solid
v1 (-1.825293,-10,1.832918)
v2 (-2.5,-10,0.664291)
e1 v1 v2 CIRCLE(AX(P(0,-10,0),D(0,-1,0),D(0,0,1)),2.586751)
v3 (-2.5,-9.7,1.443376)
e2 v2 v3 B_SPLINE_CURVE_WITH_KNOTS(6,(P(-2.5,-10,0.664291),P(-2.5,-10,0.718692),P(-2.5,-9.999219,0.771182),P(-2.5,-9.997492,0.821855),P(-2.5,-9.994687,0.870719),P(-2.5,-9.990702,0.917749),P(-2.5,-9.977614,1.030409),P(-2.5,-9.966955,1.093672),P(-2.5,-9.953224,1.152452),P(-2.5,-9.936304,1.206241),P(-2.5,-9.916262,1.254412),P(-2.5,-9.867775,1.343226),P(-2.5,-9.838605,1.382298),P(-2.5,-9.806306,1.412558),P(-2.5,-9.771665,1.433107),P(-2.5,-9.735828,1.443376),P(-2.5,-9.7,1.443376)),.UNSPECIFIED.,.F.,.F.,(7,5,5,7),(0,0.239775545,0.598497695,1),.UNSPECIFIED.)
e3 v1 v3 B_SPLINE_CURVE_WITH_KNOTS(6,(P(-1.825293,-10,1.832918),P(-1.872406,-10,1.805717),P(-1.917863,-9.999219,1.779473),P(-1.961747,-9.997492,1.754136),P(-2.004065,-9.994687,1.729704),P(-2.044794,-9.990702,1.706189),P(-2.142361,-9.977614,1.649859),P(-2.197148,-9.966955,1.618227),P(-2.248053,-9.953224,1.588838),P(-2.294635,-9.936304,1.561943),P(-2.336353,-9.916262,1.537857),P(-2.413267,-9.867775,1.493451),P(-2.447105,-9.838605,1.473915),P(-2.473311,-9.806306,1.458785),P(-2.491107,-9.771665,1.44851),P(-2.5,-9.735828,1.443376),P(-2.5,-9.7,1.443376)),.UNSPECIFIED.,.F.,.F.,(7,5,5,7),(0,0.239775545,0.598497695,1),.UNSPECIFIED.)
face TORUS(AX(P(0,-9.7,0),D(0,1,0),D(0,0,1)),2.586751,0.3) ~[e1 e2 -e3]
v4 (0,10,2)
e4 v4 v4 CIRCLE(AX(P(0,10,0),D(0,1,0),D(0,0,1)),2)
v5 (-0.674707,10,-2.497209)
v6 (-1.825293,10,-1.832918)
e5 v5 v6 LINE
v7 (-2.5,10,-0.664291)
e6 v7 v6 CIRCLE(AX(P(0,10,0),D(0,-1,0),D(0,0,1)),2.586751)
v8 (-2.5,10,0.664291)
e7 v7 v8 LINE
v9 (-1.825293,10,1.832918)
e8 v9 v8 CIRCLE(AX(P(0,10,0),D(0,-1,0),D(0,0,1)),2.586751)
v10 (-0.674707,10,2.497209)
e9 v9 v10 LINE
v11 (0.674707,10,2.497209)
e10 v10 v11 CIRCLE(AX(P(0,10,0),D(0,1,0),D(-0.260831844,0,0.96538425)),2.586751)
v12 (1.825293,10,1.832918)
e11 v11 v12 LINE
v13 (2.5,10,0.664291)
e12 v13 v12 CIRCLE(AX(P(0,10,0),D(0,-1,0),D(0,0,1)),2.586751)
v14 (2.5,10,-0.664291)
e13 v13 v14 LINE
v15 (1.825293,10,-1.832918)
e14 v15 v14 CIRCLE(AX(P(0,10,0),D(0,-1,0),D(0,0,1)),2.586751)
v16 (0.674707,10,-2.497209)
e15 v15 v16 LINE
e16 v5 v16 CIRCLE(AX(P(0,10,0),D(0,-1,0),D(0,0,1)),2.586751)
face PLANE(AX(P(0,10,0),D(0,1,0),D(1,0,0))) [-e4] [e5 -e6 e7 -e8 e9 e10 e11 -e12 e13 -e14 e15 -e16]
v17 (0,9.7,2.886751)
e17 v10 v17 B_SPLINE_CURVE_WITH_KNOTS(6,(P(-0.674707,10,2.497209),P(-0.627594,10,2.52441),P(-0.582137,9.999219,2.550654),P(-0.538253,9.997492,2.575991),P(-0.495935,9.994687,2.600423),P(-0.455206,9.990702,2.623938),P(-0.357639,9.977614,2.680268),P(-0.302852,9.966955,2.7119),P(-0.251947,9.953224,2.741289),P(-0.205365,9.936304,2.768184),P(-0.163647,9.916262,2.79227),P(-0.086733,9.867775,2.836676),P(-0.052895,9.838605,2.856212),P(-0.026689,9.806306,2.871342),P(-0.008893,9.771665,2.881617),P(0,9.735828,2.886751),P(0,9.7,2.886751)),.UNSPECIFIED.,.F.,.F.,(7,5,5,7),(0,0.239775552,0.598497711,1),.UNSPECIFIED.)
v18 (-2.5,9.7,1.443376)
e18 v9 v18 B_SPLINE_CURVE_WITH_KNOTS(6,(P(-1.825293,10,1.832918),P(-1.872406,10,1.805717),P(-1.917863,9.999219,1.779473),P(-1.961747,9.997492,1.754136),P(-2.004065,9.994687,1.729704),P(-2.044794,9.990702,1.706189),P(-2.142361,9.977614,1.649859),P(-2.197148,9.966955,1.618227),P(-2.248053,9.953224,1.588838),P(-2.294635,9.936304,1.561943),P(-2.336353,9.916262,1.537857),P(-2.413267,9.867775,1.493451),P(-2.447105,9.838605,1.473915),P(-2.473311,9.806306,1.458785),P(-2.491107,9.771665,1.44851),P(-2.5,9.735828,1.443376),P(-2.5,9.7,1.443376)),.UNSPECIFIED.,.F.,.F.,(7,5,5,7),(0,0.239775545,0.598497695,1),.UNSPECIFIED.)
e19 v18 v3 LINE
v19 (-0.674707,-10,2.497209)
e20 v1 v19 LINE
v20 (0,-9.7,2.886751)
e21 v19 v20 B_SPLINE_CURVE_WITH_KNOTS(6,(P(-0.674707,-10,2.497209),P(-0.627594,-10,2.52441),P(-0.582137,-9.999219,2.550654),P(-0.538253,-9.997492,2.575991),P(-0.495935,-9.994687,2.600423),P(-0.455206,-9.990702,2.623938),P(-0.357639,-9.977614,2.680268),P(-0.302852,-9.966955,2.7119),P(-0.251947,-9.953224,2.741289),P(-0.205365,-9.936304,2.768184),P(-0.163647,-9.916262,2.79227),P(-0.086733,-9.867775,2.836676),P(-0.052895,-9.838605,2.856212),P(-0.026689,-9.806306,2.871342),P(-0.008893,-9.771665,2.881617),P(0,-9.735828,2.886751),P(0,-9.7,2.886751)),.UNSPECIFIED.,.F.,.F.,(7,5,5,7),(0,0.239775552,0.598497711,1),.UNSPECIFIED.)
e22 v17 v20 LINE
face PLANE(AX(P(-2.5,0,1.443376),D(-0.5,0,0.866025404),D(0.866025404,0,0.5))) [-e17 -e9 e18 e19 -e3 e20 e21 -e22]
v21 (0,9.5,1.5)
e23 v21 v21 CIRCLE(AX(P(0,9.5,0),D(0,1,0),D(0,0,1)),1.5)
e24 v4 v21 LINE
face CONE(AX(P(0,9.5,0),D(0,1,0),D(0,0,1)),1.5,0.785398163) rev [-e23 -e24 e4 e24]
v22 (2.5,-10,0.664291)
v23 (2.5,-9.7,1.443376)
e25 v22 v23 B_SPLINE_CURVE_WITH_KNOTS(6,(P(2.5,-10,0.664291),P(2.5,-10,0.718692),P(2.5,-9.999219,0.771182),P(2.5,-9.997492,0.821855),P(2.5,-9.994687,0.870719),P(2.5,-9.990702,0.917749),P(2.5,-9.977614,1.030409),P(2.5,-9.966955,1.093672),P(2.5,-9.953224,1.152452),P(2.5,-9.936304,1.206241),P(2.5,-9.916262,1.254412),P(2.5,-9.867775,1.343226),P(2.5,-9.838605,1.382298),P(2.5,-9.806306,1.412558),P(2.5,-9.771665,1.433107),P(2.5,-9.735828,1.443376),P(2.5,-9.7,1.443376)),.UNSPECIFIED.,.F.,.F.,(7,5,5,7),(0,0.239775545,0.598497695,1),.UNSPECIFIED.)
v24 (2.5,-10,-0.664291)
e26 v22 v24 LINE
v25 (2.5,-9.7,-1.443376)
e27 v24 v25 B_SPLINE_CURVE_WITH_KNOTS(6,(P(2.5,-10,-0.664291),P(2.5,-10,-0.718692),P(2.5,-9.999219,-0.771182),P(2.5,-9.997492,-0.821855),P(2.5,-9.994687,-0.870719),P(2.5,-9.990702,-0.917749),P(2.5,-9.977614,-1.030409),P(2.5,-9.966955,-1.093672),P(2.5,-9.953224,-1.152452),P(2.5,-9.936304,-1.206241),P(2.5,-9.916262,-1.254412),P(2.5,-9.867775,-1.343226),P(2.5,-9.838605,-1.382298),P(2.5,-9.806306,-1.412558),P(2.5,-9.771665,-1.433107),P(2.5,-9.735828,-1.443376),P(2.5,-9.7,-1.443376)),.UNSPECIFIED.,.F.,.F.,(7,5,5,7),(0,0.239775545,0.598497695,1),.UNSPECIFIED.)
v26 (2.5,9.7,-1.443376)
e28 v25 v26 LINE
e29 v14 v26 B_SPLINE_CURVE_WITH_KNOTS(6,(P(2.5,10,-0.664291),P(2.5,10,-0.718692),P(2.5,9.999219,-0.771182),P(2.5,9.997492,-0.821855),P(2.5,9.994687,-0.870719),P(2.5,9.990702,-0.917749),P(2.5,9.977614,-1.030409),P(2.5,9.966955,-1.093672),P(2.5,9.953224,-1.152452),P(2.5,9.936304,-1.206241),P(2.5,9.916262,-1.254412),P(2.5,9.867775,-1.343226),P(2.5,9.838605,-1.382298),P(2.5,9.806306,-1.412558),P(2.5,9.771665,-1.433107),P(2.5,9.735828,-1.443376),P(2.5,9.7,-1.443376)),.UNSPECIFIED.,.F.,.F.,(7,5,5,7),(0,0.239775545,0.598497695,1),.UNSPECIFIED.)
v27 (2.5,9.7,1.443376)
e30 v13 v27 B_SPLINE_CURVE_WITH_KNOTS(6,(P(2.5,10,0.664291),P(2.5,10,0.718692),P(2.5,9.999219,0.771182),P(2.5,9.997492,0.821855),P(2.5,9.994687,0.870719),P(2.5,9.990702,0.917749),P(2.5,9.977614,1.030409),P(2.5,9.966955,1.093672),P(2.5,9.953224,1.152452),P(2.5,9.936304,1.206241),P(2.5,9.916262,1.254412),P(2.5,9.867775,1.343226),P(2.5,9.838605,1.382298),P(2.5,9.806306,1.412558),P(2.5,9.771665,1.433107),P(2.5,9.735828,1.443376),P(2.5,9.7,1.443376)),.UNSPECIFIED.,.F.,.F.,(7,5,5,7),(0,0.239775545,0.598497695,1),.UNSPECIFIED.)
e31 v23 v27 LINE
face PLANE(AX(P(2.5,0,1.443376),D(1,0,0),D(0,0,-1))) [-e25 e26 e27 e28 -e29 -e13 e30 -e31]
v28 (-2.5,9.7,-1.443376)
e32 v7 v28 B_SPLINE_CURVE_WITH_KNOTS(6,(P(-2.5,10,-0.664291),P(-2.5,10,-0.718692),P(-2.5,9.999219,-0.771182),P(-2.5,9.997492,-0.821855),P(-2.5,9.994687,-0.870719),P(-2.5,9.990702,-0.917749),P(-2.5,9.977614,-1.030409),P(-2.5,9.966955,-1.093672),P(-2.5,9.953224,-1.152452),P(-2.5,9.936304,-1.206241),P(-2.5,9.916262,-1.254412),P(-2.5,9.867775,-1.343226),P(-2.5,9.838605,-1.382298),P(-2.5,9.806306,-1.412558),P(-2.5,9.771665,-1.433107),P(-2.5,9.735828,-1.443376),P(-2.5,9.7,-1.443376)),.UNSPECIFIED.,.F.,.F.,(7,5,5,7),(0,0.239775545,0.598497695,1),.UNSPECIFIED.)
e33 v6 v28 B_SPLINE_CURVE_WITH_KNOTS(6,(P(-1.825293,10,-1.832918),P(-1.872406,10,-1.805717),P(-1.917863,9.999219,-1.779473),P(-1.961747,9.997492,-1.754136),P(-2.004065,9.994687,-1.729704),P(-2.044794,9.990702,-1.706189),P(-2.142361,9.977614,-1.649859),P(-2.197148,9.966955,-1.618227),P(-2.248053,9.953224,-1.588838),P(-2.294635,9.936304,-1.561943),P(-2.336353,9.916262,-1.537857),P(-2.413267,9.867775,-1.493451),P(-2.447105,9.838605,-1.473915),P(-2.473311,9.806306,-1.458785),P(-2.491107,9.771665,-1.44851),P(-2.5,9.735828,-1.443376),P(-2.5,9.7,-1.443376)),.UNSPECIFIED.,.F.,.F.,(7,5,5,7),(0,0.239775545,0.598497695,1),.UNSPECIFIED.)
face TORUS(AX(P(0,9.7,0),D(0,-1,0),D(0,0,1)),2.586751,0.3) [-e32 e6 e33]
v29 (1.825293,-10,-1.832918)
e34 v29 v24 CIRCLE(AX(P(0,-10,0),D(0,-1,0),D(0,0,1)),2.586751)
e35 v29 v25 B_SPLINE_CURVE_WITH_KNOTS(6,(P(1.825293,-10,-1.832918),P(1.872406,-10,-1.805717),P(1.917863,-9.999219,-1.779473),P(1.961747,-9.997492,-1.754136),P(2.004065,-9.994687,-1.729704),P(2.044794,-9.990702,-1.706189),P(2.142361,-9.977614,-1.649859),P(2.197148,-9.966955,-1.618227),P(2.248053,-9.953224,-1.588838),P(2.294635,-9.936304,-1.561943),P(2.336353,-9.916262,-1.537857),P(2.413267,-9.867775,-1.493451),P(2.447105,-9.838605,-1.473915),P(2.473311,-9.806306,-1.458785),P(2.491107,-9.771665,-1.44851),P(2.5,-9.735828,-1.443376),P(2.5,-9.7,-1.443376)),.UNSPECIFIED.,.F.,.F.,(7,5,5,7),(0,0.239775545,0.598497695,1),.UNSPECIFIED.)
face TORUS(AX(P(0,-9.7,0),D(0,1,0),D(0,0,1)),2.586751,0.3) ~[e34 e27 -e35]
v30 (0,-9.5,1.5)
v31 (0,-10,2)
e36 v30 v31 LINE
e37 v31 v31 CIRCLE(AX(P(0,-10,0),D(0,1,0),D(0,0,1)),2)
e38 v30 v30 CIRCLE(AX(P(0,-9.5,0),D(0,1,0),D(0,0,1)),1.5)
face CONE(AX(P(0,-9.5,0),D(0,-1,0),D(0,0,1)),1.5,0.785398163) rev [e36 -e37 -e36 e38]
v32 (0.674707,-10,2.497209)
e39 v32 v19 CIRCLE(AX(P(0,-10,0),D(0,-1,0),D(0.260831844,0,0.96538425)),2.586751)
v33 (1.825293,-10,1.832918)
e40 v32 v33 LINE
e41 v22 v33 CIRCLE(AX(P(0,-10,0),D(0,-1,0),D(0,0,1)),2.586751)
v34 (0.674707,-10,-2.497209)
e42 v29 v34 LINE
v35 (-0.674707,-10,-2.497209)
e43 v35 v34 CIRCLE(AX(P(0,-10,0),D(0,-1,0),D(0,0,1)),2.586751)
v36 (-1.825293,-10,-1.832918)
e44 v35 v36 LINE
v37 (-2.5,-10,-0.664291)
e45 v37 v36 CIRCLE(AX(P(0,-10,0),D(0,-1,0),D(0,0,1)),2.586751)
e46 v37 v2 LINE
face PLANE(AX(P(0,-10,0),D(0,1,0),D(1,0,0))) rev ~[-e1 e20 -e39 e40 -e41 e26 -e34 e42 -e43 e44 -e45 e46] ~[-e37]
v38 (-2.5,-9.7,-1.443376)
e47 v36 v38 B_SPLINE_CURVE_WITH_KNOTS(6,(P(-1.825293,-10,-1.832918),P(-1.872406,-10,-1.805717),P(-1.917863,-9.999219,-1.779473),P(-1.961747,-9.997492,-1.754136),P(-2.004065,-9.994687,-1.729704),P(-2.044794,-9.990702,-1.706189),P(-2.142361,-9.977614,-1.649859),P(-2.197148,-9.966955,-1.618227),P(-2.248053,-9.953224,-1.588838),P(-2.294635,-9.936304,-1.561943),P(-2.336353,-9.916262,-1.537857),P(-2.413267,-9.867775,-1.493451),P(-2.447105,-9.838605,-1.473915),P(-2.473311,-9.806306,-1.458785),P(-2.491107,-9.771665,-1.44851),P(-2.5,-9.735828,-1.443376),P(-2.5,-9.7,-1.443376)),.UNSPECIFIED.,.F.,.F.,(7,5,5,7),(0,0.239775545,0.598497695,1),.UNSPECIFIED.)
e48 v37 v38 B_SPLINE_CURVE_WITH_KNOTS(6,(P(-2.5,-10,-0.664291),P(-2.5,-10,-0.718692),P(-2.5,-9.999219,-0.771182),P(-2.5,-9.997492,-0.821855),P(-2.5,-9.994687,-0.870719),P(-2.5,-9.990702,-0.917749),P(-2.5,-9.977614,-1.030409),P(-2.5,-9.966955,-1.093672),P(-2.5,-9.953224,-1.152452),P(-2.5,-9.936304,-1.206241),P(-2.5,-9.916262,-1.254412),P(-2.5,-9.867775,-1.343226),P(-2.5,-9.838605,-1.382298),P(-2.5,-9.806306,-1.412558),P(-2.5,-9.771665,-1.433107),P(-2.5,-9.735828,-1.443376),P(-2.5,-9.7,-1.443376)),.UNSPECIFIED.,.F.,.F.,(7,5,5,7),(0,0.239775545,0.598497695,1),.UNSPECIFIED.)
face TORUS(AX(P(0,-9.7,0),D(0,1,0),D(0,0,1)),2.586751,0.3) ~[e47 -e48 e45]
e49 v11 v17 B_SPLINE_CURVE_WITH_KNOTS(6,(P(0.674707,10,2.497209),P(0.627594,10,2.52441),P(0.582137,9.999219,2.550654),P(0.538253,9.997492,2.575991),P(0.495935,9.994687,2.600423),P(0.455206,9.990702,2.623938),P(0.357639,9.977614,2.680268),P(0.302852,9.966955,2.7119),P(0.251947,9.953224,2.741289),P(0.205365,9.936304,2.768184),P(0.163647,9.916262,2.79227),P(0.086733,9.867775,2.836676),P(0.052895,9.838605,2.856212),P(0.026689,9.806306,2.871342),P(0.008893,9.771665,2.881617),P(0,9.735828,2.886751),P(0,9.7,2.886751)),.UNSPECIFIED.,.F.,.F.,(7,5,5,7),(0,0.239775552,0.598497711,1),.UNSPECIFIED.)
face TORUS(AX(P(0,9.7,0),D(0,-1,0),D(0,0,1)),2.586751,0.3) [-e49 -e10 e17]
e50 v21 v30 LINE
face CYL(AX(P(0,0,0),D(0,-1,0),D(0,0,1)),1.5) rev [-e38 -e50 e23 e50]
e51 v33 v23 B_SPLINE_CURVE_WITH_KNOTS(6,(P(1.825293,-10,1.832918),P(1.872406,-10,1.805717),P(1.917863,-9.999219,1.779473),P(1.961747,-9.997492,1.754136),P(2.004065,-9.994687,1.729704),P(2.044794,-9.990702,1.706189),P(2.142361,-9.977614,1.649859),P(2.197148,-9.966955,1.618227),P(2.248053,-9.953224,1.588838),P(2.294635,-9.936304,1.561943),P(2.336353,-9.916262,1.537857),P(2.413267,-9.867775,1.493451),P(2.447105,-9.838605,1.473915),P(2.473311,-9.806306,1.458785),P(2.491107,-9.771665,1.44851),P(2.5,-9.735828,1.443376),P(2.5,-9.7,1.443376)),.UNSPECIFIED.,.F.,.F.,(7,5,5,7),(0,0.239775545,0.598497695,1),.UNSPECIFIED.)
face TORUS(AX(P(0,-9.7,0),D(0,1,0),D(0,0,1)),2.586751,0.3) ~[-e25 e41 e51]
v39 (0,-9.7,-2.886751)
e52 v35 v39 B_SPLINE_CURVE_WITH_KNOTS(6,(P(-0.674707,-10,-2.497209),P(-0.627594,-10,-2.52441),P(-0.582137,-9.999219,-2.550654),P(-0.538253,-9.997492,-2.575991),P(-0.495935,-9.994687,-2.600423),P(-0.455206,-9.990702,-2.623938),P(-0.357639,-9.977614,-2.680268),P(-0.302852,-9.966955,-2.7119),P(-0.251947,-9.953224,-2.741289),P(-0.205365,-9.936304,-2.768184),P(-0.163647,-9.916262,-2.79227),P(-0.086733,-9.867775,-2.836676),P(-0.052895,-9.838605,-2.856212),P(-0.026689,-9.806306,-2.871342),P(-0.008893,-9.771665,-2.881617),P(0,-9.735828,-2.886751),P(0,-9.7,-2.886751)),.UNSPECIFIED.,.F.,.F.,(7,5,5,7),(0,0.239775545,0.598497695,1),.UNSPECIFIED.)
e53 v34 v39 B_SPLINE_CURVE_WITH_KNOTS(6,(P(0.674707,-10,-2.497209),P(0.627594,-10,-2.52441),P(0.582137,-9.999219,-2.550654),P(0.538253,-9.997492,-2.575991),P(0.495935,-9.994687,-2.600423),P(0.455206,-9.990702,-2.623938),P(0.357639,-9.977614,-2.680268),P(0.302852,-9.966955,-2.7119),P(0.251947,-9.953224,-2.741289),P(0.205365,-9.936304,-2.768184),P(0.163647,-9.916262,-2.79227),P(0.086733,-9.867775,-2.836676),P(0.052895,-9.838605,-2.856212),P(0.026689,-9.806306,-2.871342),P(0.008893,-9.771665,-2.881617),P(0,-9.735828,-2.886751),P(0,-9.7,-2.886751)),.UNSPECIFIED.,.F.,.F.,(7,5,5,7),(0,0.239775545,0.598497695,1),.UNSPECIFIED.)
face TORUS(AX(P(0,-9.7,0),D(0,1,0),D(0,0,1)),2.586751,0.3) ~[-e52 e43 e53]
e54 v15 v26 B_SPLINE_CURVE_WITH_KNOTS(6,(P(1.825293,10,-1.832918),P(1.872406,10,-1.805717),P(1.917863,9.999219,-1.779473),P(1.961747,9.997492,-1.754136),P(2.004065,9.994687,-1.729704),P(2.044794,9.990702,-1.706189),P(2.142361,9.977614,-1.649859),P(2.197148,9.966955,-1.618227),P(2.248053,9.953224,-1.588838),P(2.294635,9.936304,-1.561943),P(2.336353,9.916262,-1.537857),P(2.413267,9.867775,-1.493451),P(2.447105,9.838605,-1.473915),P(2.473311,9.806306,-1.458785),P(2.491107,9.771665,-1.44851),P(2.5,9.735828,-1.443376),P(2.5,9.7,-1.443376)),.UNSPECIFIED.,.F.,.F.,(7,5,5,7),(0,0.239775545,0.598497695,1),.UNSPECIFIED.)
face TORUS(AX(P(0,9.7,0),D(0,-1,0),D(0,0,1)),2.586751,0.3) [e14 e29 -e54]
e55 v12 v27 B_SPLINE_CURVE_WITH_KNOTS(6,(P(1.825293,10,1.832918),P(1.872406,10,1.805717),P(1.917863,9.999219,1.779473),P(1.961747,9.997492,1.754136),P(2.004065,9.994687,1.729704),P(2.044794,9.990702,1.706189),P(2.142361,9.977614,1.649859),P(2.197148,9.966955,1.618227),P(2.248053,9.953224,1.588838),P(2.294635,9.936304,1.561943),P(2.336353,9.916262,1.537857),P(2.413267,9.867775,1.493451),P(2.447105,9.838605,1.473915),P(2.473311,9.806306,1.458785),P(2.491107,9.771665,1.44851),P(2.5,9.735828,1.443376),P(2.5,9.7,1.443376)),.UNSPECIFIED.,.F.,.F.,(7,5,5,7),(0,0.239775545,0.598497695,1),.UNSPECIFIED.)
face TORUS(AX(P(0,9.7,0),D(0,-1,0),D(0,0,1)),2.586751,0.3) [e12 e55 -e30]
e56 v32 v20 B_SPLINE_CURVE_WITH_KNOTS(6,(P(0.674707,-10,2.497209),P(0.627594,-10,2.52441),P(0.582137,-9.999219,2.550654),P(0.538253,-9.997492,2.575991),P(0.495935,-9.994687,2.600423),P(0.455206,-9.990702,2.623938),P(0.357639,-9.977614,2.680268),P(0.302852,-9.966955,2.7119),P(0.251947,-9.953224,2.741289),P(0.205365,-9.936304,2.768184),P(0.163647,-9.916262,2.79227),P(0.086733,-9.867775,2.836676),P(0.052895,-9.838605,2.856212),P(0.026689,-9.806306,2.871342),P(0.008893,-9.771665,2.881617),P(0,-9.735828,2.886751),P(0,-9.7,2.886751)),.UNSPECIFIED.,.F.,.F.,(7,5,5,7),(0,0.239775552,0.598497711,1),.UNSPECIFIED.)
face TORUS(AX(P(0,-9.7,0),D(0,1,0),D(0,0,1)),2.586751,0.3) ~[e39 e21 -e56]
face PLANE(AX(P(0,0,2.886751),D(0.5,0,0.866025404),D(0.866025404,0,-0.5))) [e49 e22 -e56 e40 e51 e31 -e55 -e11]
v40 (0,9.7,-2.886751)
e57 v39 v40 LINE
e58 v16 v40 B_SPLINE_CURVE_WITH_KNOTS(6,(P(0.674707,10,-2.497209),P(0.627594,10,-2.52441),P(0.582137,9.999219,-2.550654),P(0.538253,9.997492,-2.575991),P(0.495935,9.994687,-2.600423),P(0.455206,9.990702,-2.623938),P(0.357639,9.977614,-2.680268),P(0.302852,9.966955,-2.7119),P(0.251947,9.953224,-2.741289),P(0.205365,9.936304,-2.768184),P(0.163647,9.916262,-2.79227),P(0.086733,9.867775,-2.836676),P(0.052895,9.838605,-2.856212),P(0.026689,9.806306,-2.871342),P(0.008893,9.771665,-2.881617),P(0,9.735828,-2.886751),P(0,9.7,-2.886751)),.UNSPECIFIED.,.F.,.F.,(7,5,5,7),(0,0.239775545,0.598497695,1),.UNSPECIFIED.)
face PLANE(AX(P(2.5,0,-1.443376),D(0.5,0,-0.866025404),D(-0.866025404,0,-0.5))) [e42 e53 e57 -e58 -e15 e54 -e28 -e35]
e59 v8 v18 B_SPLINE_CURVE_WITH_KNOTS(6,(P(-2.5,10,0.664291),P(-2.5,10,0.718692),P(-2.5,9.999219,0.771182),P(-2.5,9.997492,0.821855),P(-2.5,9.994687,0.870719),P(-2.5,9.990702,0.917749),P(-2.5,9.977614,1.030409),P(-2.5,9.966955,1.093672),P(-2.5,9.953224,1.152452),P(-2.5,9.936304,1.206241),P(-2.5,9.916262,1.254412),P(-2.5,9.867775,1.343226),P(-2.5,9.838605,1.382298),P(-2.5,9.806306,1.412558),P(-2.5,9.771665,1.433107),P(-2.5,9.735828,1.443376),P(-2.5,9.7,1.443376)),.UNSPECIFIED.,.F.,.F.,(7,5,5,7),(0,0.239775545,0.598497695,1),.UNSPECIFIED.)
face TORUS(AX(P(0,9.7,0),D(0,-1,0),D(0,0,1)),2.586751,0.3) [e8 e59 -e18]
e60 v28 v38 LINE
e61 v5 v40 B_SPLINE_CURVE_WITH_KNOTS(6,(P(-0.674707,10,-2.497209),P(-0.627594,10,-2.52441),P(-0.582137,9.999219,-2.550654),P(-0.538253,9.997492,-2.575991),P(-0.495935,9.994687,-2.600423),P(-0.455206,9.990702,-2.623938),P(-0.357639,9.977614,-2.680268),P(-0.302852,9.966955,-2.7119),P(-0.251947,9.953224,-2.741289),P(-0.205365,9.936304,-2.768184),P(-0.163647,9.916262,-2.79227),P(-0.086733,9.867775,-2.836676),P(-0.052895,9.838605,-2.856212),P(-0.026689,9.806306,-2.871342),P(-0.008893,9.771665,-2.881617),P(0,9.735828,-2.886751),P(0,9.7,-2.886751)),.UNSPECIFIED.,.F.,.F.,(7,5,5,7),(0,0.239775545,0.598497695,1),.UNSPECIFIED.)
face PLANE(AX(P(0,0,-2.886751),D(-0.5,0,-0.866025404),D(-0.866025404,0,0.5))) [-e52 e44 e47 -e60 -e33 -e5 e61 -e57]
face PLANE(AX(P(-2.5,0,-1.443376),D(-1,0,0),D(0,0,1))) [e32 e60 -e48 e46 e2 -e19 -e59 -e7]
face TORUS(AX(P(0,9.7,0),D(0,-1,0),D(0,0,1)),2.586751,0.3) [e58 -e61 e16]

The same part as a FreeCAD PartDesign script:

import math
import FreeCAD as App
import Part
import Sketcher

V = App.Vector
Q = App.Units.Quantity


def edges_at(feature, points):
    """Names of the edges that pass closest to the given points."""
    edges = feature.Shape.Edges
    near = lambda p: min(range(len(edges)), key=lambda i: edges[i].distToShape(Part.Vertex(*p))[0])
    return sorted({f"Edge{near(p) + 1}" for p in points})

doc = App.newDocument("Part")
body = doc.addObject("PartDesign::Body", "Body")

sketch1 = doc.addObject("Sketcher::SketchObject", "Sketch")
body.addObject(sketch1)
sketch1.AttachmentSupport = (doc.XZ_Plane, [""])
sketch1.MapMode = "FlatFace"
sketch1.addGeometry(Part.LineSegment(V(0, 2.9, 0), V(2.5, 1.4, 0)), False)
sketch1.addGeometry(Part.LineSegment(V(2.5, 1.4, 0), V(2.5, -1.4, 0)), False)
sketch1.addGeometry(Part.LineSegment(V(2.5, -1.4, 0), V(0, -2.9, 0)), False)
sketch1.addGeometry(Part.LineSegment(V(0, -2.9, 0), V(-2.5, -1.4, 0)), False)
sketch1.addGeometry(Part.LineSegment(V(-2.5, -1.4, 0), V(-2.5, 1.4, 0)), False)
sketch1.addGeometry(Part.LineSegment(V(-2.5, 1.4, 0), V(0, 2.9, 0)), False)
sketch1.addGeometry(Part.Circle(V(0, 0, 0), V(0, 0, 1), 1.5), False)
sketch1.addConstraint(Sketcher.Constraint("Coincident", 0, 2, 1, 1))
sketch1.addConstraint(Sketcher.Constraint("Coincident", 1, 2, 2, 1))
sketch1.addConstraint(Sketcher.Constraint("Coincident", 2, 2, 3, 1))
sketch1.addConstraint(Sketcher.Constraint("Coincident", 3, 2, 4, 1))
sketch1.addConstraint(Sketcher.Constraint("Coincident", 4, 2, 5, 1))
sketch1.addConstraint(Sketcher.Constraint("Coincident", 5, 2, 0, 1))
sketch1.addConstraint(Sketcher.Constraint("Vertical", 1))
sketch1.addConstraint(Sketcher.Constraint("Vertical", 4))
sketch1.addConstraint(Sketcher.Constraint("Coincident", 6, 3, -1, 1))
sketch1.addConstraint(Sketcher.Constraint("Symmetric", 0, 2, 3, 2, -1, 1))
sketch1.addConstraint(Sketcher.Constraint("Symmetric", 2, 2, 5, 2, -1, 1))
sketch1.addConstraint(Sketcher.Constraint("PointOnObject", 2, 2, -2))
sketch1.addConstraint(Sketcher.Constraint("Parallel", 2, 5))
sketch1.addConstraint(Sketcher.Constraint("Horizontal", 1, 2, 3, 2))
sketch1.addConstraint(Sketcher.Constraint("Diameter", 6, 3.0))
sketch1.addConstraint(Sketcher.Constraint("Angle", 0, Q("-30 deg")))
sketch1.addConstraint(Sketcher.Constraint("DistanceX", 3, 2, 1, 2, 5.0))
sketch1.addConstraint(Sketcher.Constraint("DistanceY", 1, 2, 1, 1, 2.886751))
pad1 = doc.addObject("PartDesign::Pad", "Pad")
body.addObject(pad1)
pad1.Profile = sketch1
pad1.Length = 20
pad1.Midplane = True
doc.recompute()

chamfer = doc.addObject("PartDesign::Chamfer", "Chamfer")
body.addObject(chamfer)
chamfer.Base = (pad1, edges_at(pad1, [(0, -10, -1.5), (0, 10, -1.5)]))
chamfer.Size = 0.5

sketch2 = doc.addObject("Sketcher::SketchObject", "Sketch001")
body.addObject(sketch2)
sketch2.AttachmentSupport = (doc.YZ_Plane, [""])
sketch2.MapMode = "FlatFace"
sketch2.addGeometry(Part.LineSegment(V(10, 2.89, 0), V(9.7, 2.89, 0)), False)
sketch2.addGeometry(Part.ArcOfCircle(Part.Circle(V(9.7, 2.59, 0), V(0, 0, 1), 0.3), math.radians(0), math.radians(90)), False)
sketch2.addGeometry(Part.LineSegment(V(10, 2.59, 0), V(10, 2.89, 0)), False)
sketch2.addConstraint(Sketcher.Constraint("Tangent", 0, 2, 1, 2))
sketch2.addConstraint(Sketcher.Constraint("Tangent", 1, 1, 2, 1))
sketch2.addConstraint(Sketcher.Constraint("Coincident", 2, 2, 0, 1))
sketch2.addConstraint(Sketcher.Constraint("Horizontal", 0))
sketch2.addConstraint(Sketcher.Constraint("Vertical", 2))
sketch2.addConstraint(Sketcher.Constraint("Radius", 1, 0.3))
sketch2.addConstraint(Sketcher.Constraint("DistanceX", -1, 1, 1, 1, 10.0))
sketch2.addConstraint(Sketcher.Constraint("DistanceY", -1, 1, 1, 3, 2.586751))
groove = doc.addObject("PartDesign::Groove", "Groove")
body.addObject(groove)
groove.Profile = sketch2
groove.ReferenceAxis = (sketch2, ["H_Axis"])
groove.Angle = 360
doc.recompute()

mirrored = doc.addObject("PartDesign::Mirrored", "Mirrored")
body.addObject(mirrored)
mirrored.Originals = [groove]
mirrored.MirrorPlane = (doc.XZ_Plane, [""])
body.Tip = mirrored

doc.recompute()
